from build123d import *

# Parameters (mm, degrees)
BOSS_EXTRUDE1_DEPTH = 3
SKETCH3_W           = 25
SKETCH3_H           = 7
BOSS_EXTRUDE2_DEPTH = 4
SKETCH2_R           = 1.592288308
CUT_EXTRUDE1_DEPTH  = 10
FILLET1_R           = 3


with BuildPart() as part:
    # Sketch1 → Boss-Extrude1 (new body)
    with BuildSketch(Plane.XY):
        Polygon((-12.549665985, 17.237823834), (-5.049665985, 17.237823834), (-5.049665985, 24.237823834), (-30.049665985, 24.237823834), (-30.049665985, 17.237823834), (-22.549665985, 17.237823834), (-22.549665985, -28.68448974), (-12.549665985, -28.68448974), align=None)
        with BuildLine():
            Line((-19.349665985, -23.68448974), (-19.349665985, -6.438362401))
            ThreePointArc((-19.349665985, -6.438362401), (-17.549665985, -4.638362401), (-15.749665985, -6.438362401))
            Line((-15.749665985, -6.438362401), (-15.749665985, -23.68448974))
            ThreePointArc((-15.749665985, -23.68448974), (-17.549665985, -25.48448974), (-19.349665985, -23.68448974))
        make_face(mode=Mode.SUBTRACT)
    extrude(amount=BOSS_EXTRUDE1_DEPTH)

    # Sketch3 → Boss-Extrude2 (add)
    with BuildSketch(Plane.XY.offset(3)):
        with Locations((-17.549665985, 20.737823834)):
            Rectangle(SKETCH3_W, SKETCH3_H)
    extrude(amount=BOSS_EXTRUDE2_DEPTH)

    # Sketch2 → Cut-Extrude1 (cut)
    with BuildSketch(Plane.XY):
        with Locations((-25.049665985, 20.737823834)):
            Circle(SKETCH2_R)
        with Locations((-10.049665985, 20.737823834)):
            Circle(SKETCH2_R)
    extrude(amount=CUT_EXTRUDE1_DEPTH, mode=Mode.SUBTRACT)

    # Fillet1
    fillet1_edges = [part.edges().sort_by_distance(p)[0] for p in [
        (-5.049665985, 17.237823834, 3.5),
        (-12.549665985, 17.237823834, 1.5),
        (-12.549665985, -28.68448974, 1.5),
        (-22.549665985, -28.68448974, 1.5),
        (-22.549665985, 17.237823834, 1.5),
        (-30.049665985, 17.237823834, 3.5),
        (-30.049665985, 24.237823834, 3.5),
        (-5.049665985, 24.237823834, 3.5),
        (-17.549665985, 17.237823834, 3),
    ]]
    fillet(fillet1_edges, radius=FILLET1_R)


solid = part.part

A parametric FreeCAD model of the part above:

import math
import FreeCAD as App
import Part
import Sketcher


def edges_at(feature, points):
    """Names of the edges that pass closest to the given points."""
    edges = feature.Shape.Edges
    near = lambda p: min(range(len(edges)), key=lambda i: edges[i].distToShape(Part.Vertex(*p))[0])
    return sorted({f"Edge{near(p) + 1}" for p in points})


def add_polygon(sketch, points):
    """Adds a closed chain of lines whose ends are joined by coincident constraints."""
    first, n = sketch.GeometryCount, len(points)
    for a, b in zip(points, points[1:] + points[:1]):
        sketch.addGeometry(Part.LineSegment(App.Vector(*a, 0), App.Vector(*b, 0)), False)
    for i in range(n):
        sketch.addConstraint(Sketcher.Constraint("Coincident", first + i, 2, first + (i + 1) % n, 1))

doc = App.newDocument("Part")
body = doc.addObject("PartDesign::Body", "Body")

# Sketch on XY plane
sketch1 = doc.addObject("Sketcher::SketchObject", "Sketch")
body.addObject(sketch1)
sketch1.AttachmentSupport = (doc.XY_Plane, [""])
sketch1.MapMode = "FlatFace"
add_polygon(sketch1, [(-12.549666, 17.237824), (-5.049666, 17.237824), (-5.049666, 24.237824), (-30.049666, 24.237824), (-30.049666, 17.237824), (-22.549666, 17.237824), (-22.549666, -28.68449), (-12.549666, -28.68449)])  # lines 0-7
sketch1.addGeometry(Part.ArcOfCircle(Part.Circle(App.Vector(-17.549666, -23.68449, 0), App.Vector(0, 0, 1), 1.8), math.radians(180), math.radians(360)), False)  # 8
sketch1.addGeometry(Part.LineSegment(App.Vector(-19.349666, -23.68449, 0), App.Vector(-19.349666, -6.438362, 0)), False)  # 9
sketch1.addGeometry(Part.ArcOfCircle(Part.Circle(App.Vector(-17.549666, -6.438362, 0), App.Vector(0, 0, 1), 1.8), math.radians(0), math.radians(180)), False)  # 10
sketch1.addGeometry(Part.LineSegment(App.Vector(-15.749666, -6.438362, 0), App.Vector(-15.749666, -23.68449, 0)), False)  # 11
sketch1.addConstraint([
    Sketcher.Constraint("Tangent", 8, 1, 9, 1),
    Sketcher.Constraint("Tangent", 9, 2, 10, 2),
    Sketcher.Constraint("Tangent", 10, 1, 11, 1),
    Sketcher.Constraint("Tangent", 11, 2, 8, 2),
    Sketcher.Constraint("Horizontal", 0),
    Sketcher.Constraint("Vertical", 1),
    Sketcher.Constraint("Horizontal", 2),
    Sketcher.Constraint("Vertical", 3),
    Sketcher.Constraint("Horizontal", 4),
    Sketcher.Constraint("Vertical", 5),
    Sketcher.Constraint("Horizontal", 6),
    Sketcher.Constraint("Vertical", 7),
    Sketcher.Constraint("Vertical", 9),
    Sketcher.Constraint("Vertical", 11),
    Sketcher.Constraint("Horizontal", 0, 2, 3, 2),
    Sketcher.Constraint("Equal", 0, 4),
    Sketcher.Constraint("Radius", 8, 1.8),
    Sketcher.Constraint("DistanceX", 2, 2, 2, 1, 25.0),
    Sketcher.Constraint("DistanceX", 6, 1, 6, 2, 10.0),
    Sketcher.Constraint("DistanceY", 1, 1, 1, 2, 7.0),
    Sketcher.Constraint("DistanceX", 4, 2, 10, 3, 5.0),
    Sketcher.Constraint("DistanceY", 5, 2, 8, 3, 5.0),
    Sketcher.Constraint("DistanceY", 5, 2, 5, 1, 45.922314),
    Sketcher.Constraint("DistanceY", 9, 1, 9, 2, 17.246127),
    Sketcher.Constraint("DistanceY", 8, 3, -1, 1, 23.68449),
    Sketcher.Constraint("DistanceX", 8, 3, -1, 1, 17.549666),
])
pad1 = doc.addObject("PartDesign::Pad", "Pad")
body.addObject(pad1)
pad1.Profile = sketch1
pad1.Length = 3

# Sketch on XY plane
sketch2 = doc.addObject("Sketcher::SketchObject", "Sketch001")
body.addObject(sketch2)
sketch2.AttachmentSupport = (doc.XY_Plane, [""])
sketch2.MapMode = "FlatFace"
sketch2.AttachmentOffset = App.Placement(App.Vector(0, 0, 3), App.Rotation())
add_polygon(sketch2, [(-30.049666, 24.237824), (-30.049666, 17.237824), (-5.049666, 17.237824), (-5.049666, 24.237824)])  # lines 0-3
sketch2.addConstraint([
    Sketcher.Constraint("Vertical", 0),
    Sketcher.Constraint("Horizontal", 1),
    Sketcher.Constraint("Vertical", 2),
    Sketcher.Constraint("Horizontal", 3),
    Sketcher.Constraint("DistanceX", 1, 1, 1, 2, 25.0),
    Sketcher.Constraint("DistanceY", 0, 2, 0, 1, 7.0),
    Sketcher.Constraint("DistanceX", 0, 2, -1, 1, 30.049666),
    Sketcher.Constraint("DistanceY", -1, 1, 0, 2, 17.237824),
])
pad2 = doc.addObject("PartDesign::Pad", "Pad001")
body.addObject(pad2)
pad2.Profile = sketch2
pad2.Length = 4

# Sketch on XY plane
sketch3 = doc.addObject("Sketcher::SketchObject", "Sketch002")
body.addObject(sketch3)
sketch3.AttachmentSupport = (doc.XY_Plane, [""])
sketch3.MapMode = "FlatFace"
sketch3.addGeometry([
    Part.Circle(App.Vector(-25.049666, 20.737824, 0), App.Vector(0, 0, 1), 1.592288),
    Part.Circle(App.Vector(-10.049666, 20.737824, 0), App.Vector(0, 0, 1), 1.592288),
], False)
sketch3.addConstraint([
    Sketcher.Constraint("Equal", 0, 1),
    Sketcher.Constraint("Horizontal", 0, 3, 1, 3),
    Sketcher.Constraint("DistanceX", 0, 3, 1, 3, 15.0),
    Sketcher.Constraint("Diameter", 0, 3.184577),
    Sketcher.Constraint("DistanceX", 0, 3, -1, 1, 25.049666),
    Sketcher.Constraint("DistanceY", -1, 1, 0, 3, 20.737824),
])
pocket1 = doc.addObject("PartDesign::Pocket", "Pocket")
body.addObject(pocket1)
pocket1.Profile = sketch3
pocket1.Length = 10
pocket1.Reversed = True
doc.recompute()

fillet = doc.addObject("PartDesign::Fillet", "Fillet")
body.addObject(fillet)
fillet.Base = (pocket1, edges_at(pocket1, [
    (-5.05, 17.238, 3.5),
    (-12.55, 17.238, 1.5),
    (-12.55, -28.684, 1.5),
    (-22.55, -28.684, 1.5),
    (-22.55, 17.238, 1.5),
    (-30.05, 17.238, 3.5),
    (-30.05, 24.238, 3.5),
    (-5.05, 24.238, 3.5),
    (-17.55, 17.238, 3),
]))
fillet.Radius = 3

doc.recompute()
